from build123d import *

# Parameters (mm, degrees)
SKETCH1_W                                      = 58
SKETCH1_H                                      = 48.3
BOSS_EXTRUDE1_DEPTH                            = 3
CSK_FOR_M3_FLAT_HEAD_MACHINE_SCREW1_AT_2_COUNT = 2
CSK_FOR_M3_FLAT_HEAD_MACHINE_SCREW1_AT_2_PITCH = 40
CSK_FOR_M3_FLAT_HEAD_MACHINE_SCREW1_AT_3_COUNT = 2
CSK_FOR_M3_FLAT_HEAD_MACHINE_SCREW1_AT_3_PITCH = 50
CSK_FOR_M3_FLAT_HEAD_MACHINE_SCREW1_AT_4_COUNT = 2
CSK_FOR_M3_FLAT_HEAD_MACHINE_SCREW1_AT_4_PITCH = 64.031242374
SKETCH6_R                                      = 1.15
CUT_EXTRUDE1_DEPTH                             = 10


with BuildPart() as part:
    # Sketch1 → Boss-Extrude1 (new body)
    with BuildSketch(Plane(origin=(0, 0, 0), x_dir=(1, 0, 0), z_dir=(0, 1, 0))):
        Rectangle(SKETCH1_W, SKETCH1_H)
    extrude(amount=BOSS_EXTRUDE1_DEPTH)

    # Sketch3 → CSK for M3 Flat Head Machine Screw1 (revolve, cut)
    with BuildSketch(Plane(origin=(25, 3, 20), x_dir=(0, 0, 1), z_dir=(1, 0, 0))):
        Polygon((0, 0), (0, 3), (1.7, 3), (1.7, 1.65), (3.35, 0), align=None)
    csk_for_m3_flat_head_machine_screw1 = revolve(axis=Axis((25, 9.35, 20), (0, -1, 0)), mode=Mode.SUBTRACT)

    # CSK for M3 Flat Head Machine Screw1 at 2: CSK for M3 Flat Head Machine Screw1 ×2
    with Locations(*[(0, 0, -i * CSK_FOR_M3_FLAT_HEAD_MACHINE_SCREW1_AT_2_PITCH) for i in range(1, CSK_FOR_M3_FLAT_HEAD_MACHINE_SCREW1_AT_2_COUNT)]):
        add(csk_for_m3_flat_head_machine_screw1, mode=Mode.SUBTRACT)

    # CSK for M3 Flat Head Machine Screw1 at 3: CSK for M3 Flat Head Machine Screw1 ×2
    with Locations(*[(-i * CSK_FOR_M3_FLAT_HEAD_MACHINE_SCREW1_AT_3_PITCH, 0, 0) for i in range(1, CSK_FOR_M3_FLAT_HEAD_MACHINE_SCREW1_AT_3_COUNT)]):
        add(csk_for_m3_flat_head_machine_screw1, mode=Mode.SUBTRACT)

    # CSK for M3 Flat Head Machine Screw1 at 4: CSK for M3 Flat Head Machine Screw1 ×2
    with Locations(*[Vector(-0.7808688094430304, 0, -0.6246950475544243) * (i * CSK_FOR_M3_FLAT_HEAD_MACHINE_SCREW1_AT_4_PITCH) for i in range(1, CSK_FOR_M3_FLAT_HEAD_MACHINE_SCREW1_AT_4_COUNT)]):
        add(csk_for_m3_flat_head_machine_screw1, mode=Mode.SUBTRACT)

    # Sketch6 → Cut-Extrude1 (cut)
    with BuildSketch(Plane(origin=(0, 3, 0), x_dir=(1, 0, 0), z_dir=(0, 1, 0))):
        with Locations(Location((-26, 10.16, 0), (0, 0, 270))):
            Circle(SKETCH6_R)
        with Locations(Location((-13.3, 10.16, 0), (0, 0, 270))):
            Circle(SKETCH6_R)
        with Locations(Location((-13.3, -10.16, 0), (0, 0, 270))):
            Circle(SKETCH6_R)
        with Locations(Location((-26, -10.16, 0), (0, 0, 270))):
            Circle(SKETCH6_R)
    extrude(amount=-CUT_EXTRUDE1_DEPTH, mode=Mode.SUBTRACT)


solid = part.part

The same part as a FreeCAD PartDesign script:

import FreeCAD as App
import Part
import Sketcher

V = App.Vector
Q = App.Units.Quantity


def add_polygon(sketch, points):
    """Adds a closed chain of lines whose ends are joined by coincident constraints."""
    first, n = sketch.GeometryCount, len(points)
    for a, b in zip(points, points[1:] + points[:1]):
        sketch.addGeometry(Part.LineSegment(App.Vector(*a, 0), App.Vector(*b, 0)), False)
    for i in range(n):
        sketch.addConstraint(Sketcher.Constraint("Coincident", first + i, 2, first + (i + 1) % n, 1))

doc = App.newDocument("Part")
body = doc.addObject("PartDesign::Body", "Body")

sketch1 = doc.addObject("Sketcher::SketchObject", "Sketch")
body.addObject(sketch1)
sketch1.AttachmentSupport = (doc.XZ_Plane, [""])
sketch1.MapMode = "FlatFace"
add_polygon(sketch1, [(-29, -24.15), (-29, 24.15), (29, 24.15), (29, -24.15)])
sketch1.addConstraint(Sketcher.Constraint("Vertical", 0))
sketch1.addConstraint(Sketcher.Constraint("Horizontal", 1))
sketch1.addConstraint(Sketcher.Constraint("Vertical", 2))
sketch1.addConstraint(Sketcher.Constraint("Horizontal", 3))
sketch1.addConstraint(Sketcher.Constraint("Symmetric", 0, 2, 2, 2, -1, 1))
sketch1.addConstraint(Sketcher.Constraint("DistanceX", 1, 1, 1, 2, Q("58 mm")))
sketch1.addConstraint(Sketcher.Constraint("DistanceY", 0, 1, 0, 2, Q("48.3 mm")))
pad1 = doc.addObject("PartDesign::Pad", "Pad")
body.addObject(pad1)
pad1.Profile = sketch1
pad1.Length = 3
pad1.Reversed = True

sketch2 = doc.addObject("Sketcher::SketchObject", "Sketch001")
body.addObject(sketch2)
sketch2.AttachmentSupport = (doc.YZ_Plane, [""])
sketch2.MapMode = "FlatFace"
sketch2.AttachmentOffset = App.Placement(V(0, 0, 25), App.Rotation())
add_polygon(sketch2, [(0, 20), (3, 20), (3, 23.35), (1.35, 21.7), (0, 21.7)])
sketch2.addGeometry(Part.LineSegment(V(3, 20, 0), V(0, 20, 0)), True)
sketch2.addConstraint(Sketcher.Constraint("Horizontal", 0))
sketch2.addConstraint(Sketcher.Constraint("Vertical", 1))
sketch2.addConstraint(Sketcher.Constraint("Horizontal", 3))
sketch2.addConstraint(Sketcher.Constraint("Vertical", 4))
sketch2.addConstraint(Sketcher.Constraint("Horizontal", 5))
sketch2.addConstraint(Sketcher.Constraint("Coincident", 5, 1, 0, 2))
sketch2.addConstraint(Sketcher.Constraint("PointOnObject", 3, 2, -2))
sketch2.addConstraint(Sketcher.Constraint("PointOnObject", 5, 2, -2))
sketch2.addConstraint(Sketcher.Constraint("DistanceX", 0, 1, 0, 2, Q("3 mm")))
sketch2.addConstraint(Sketcher.Constraint("Angle", 2, Q("-135 deg")))
sketch2.addConstraint(Sketcher.Constraint("DistanceY", 4, 2, 4, 1, Q("1.7 mm")))
sketch2.addConstraint(Sketcher.Constraint("DistanceY", -1, 1, 0, 2, Q("20 mm")))
sketch2.addConstraint(Sketcher.Constraint("DistanceX", 3, 2, 3, 1, Q("1.35 mm")))
groove = doc.addObject("PartDesign::Groove", "Groove")
body.addObject(groove)
groove.Profile = sketch2
groove.ReferenceAxis = (sketch2, ["Axis0"])
groove.Angle = 360
doc.recompute()

linearpattern = doc.addObject("PartDesign::LinearPattern", "LinearPattern")
body.addObject(linearpattern)
linearpattern.Originals = [groove]
linearpattern.Direction = (doc.Z_Axis, [""])
linearpattern.Mode = "offset"
linearpattern.Offset = 40
linearpattern.Occurrences = 2
linearpattern.Reversed = True
body.Tip = linearpattern
doc.recompute()

linearpattern2 = doc.addObject("PartDesign::LinearPattern", "LinearPattern001")
body.addObject(linearpattern2)
linearpattern2.Originals = [groove]
linearpattern2.Direction = (doc.X_Axis, [""])
linearpattern2.Mode = "offset"
linearpattern2.Offset = 50
linearpattern2.Occurrences = 2
linearpattern2.Reversed = True
body.Tip = linearpattern2
doc.recompute()

datumline = doc.addObject("PartDesign::Line", "DatumLine")
body.addObject(datumline)
datumline.Placement = App.Placement(V(0, 0, 0), App.Rotation(V(0, 0, 1), V(-0.780868809, 0, -0.624695048)))
linearpattern3 = doc.addObject("PartDesign::LinearPattern", "LinearPattern002")
body.addObject(linearpattern3)
linearpattern3.Originals = [groove]
linearpattern3.Direction = (datumline, [""])
linearpattern3.Mode = "offset"
linearpattern3.Offset = 64.031242
linearpattern3.Occurrences = 2
body.Tip = linearpattern3

sketch3 = doc.addObject("Sketcher::SketchObject", "Sketch002")
body.addObject(sketch3)
sketch3.AttachmentSupport = (doc.XZ_Plane, [""])
sketch3.MapMode = "FlatFace"
sketch3.AttachmentOffset = App.Placement(V(0, 0, -3), App.Rotation())
sketch3.addGeometry(Part.Circle(V(-26, -10.16, 0), V(0, 0, 1), 1.15), False)
sketch3.addGeometry(Part.Circle(V(-13.3, -10.16, 0), V(0, 0, 1), 1.15), False)
sketch3.addGeometry(Part.Circle(V(-13.3, 10.16, 0), V(0, 0, 1), 1.15), False)
sketch3.addGeometry(Part.Circle(V(-26, 10.16, 0), V(0, 0, 1), 1.15), False)
sketch3.addConstraint(Sketcher.Constraint("Equal", 0, 1))
sketch3.addConstraint(Sketcher.Constraint("Equal", 1, 2))
sketch3.addConstraint(Sketcher.Constraint("Equal", 2, 3))
sketch3.addConstraint(Sketcher.Constraint("Symmetric", 1, 3, 2, 3, -1))
sketch3.addConstraint(Sketcher.Constraint("Symmetric", 0, 3, 3, 3, -1))
sketch3.addConstraint(Sketcher.Constraint("Horizontal", 0, 3, 1, 3))
sketch3.addConstraint(Sketcher.Constraint("Diameter", 0, Q("2.3 mm")))
sketch3.addConstraint(Sketcher.Constraint("DistanceX", 0, 3, -1, 1, Q("26 mm")))
sketch3.addConstraint(Sketcher.Constraint("DistanceX", 1, 3, -1, 1, Q("13.3 mm")))
sketch3.addConstraint(Sketcher.Constraint("DistanceY", 0, 3, -1, 1, Q("10.16 mm")))
pocket1 = doc.addObject("PartDesign::Pocket", "Pocket")
body.addObject(pocket1)
pocket1.Profile = sketch3
pocket1.Length = 10
pocket1.Reversed = True

doc.recompute()
